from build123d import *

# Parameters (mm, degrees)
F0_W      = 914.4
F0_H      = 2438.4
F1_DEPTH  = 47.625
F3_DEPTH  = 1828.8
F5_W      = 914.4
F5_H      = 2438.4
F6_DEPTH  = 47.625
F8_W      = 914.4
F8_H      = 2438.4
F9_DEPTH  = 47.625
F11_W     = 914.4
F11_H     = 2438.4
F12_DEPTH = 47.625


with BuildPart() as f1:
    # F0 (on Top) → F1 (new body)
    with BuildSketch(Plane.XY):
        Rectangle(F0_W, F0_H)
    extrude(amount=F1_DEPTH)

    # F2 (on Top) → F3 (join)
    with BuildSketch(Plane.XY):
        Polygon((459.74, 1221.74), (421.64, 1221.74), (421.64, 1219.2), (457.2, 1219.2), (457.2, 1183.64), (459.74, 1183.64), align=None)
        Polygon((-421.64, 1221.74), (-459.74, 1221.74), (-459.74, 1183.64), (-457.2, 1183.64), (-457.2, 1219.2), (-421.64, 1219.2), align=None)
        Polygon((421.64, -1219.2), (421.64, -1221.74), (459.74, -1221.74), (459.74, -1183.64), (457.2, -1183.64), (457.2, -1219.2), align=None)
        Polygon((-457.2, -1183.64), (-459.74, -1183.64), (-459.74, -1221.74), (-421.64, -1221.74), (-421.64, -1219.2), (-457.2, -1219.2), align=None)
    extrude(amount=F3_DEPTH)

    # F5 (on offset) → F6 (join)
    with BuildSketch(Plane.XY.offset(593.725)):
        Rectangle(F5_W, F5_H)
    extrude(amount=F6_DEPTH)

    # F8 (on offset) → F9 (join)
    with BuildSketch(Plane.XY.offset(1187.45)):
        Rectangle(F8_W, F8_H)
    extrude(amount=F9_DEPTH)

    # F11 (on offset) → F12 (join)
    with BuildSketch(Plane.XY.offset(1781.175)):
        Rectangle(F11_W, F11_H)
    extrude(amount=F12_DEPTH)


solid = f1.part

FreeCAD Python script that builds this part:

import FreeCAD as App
import Part
import Sketcher

V = App.Vector
Q = App.Units.Quantity

doc = App.newDocument("Part")
body = doc.addObject("PartDesign::Body", "Body")

sketch1 = body.newObject("Sketcher::SketchObject", "Sketch")
sketch1.AttachmentSupport = (doc.getObject("XY_Plane"), [""])
sketch1.MapMode = "FlatFace"
sketch1.addGeometry(Part.LineSegment(V(-457, 1219, 0), V(-457, -1219, 0)), False)
sketch1.addGeometry(Part.LineSegment(V(-457, -1219, 0), V(457, -1219, 0)), False)
sketch1.addGeometry(Part.LineSegment(V(457, -1219, 0), V(457, 1219, 0)), False)
sketch1.addGeometry(Part.LineSegment(V(457, 1219, 0), V(-457, 1219, 0)), False)
sketch1.addConstraint(Sketcher.Constraint("Coincident", 0, 2, 1, 1))
sketch1.addConstraint(Sketcher.Constraint("Coincident", 1, 2, 2, 1))
sketch1.addConstraint(Sketcher.Constraint("Coincident", 2, 2, 3, 1))
sketch1.addConstraint(Sketcher.Constraint("Coincident", 3, 2, 0, 1))
sketch1.addConstraint(Sketcher.Constraint("Vertical", 0))
sketch1.addConstraint(Sketcher.Constraint("Horizontal", 1))
sketch1.addConstraint(Sketcher.Constraint("Vertical", 2))
sketch1.addConstraint(Sketcher.Constraint("Horizontal", 3))
sketch1.addConstraint(Sketcher.Constraint("Symmetric", 0, 2, 2, 2, -1, 1))
sketch1.addConstraint(Sketcher.Constraint("DistanceX", 1, 1, 1, 2, Q("36 in")))
sketch1.addConstraint(Sketcher.Constraint("DistanceY", 0, 2, 0, 1, Q("96 in")))
pad1 = body.newObject("PartDesign::Pad", "Pad")
pad1.Profile = sketch1
pad1.Length = Q("1.875 in")

sketch2 = body.newObject("Sketcher::SketchObject", "Sketch001")
sketch2.AttachmentSupport = (doc.getObject("XY_Plane"), [""])
sketch2.MapMode = "FlatFace"
sketch2.addGeometry(Part.LineSegment(V(459.7, 1221.7, 0), V(421.6, 1221.7, 0)), False)
sketch2.addGeometry(Part.LineSegment(V(421.6, 1221.7, 0), V(421.6, 1219.2, 0)), False)
sketch2.addGeometry(Part.LineSegment(V(421.6, 1219.2, 0), V(457.2, 1219.2, 0)), False)
sketch2.addGeometry(Part.LineSegment(V(457.2, 1219.2, 0), V(457.2, 1183.6, 0)), False)
sketch2.addGeometry(Part.LineSegment(V(457.2, 1183.6, 0), V(459.7, 1183.6, 0)), False)
sketch2.addGeometry(Part.LineSegment(V(459.7, 1183.6, 0), V(459.7, 1221.7, 0)), False)
sketch2.addGeometry(Part.LineSegment(V(-421.6, 1221.7, 0), V(-459.7, 1221.7, 0)), False)
sketch2.addGeometry(Part.LineSegment(V(-459.7, 1221.7, 0), V(-459.7, 1183.6, 0)), False)
sketch2.addGeometry(Part.LineSegment(V(-459.7, 1183.6, 0), V(-457.2, 1183.6, 0)), False)
sketch2.addGeometry(Part.LineSegment(V(-457.2, 1183.6, 0), V(-457.2, 1219.2, 0)), False)
sketch2.addGeometry(Part.LineSegment(V(-457.2, 1219.2, 0), V(-421.6, 1219.2, 0)), False)
sketch2.addGeometry(Part.LineSegment(V(-421.6, 1219.2, 0), V(-421.6, 1221.7, 0)), False)
sketch2.addGeometry(Part.LineSegment(V(421.6, -1219.2, 0), V(421.6, -1221.7, 0)), False)
sketch2.addGeometry(Part.LineSegment(V(421.6, -1221.7, 0), V(459.7, -1221.7, 0)), False)
sketch2.addGeometry(Part.LineSegment(V(459.7, -1221.7, 0), V(459.7, -1183.6, 0)), False)
sketch2.addGeometry(Part.LineSegment(V(459.7, -1183.6, 0), V(457.2, -1183.6, 0)), False)
sketch2.addGeometry(Part.LineSegment(V(457.2, -1183.6, 0), V(457.2, -1219.2, 0)), False)
sketch2.addGeometry(Part.LineSegment(V(457.2, -1219.2, 0), V(421.6, -1219.2, 0)), False)
sketch2.addGeometry(Part.LineSegment(V(-457.2, -1183.6, 0), V(-459.7, -1183.6, 0)), False)
sketch2.addGeometry(Part.LineSegment(V(-459.7, -1183.6, 0), V(-459.7, -1221.7, 0)), False)
sketch2.addGeometry(Part.LineSegment(V(-459.7, -1221.7, 0), V(-421.6, -1221.7, 0)), False)
sketch2.addGeometry(Part.LineSegment(V(-421.6, -1221.7, 0), V(-421.6, -1219.2, 0)), False)
sketch2.addGeometry(Part.LineSegment(V(-421.6, -1219.2, 0), V(-457.2, -1219.2, 0)), False)
sketch2.addGeometry(Part.LineSegment(V(-457.2, -1219.2, 0), V(-457.2, -1183.6, 0)), False)
sketch2.addConstraint(Sketcher.Constraint("Coincident", 0, 2, 1, 1))
sketch2.addConstraint(Sketcher.Constraint("Coincident", 1, 2, 2, 1))
sketch2.addConstraint(Sketcher.Constraint("Coincident", 2, 2, 3, 1))
sketch2.addConstraint(Sketcher.Constraint("Coincident", 3, 2, 4, 1))
sketch2.addConstraint(Sketcher.Constraint("Coincident", 4, 2, 5, 1))
sketch2.addConstraint(Sketcher.Constraint("Coincident", 5, 2, 0, 1))
sketch2.addConstraint(Sketcher.Constraint("Coincident", 6, 2, 7, 1))
sketch2.addConstraint(Sketcher.Constraint("Coincident", 7, 2, 8, 1))
sketch2.addConstraint(Sketcher.Constraint("Coincident", 8, 2, 9, 1))
sketch2.addConstraint(Sketcher.Constraint("Coincident", 9, 2, 10, 1))
sketch2.addConstraint(Sketcher.Constraint("Coincident", 10, 2, 11, 1))
sketch2.addConstraint(Sketcher.Constraint("Coincident", 11, 2, 6, 1))
sketch2.addConstraint(Sketcher.Constraint("Coincident", 12, 2, 13, 1))
sketch2.addConstraint(Sketcher.Constraint("Coincident", 13, 2, 14, 1))
sketch2.addConstraint(Sketcher.Constraint("Coincident", 14, 2, 15, 1))
sketch2.addConstraint(Sketcher.Constraint("Coincident", 15, 2, 16, 1))
sketch2.addConstraint(Sketcher.Constraint("Coincident", 16, 2, 17, 1))
sketch2.addConstraint(Sketcher.Constraint("Coincident", 17, 2, 12, 1))
sketch2.addConstraint(Sketcher.Constraint("Coincident", 18, 2, 19, 1))
sketch2.addConstraint(Sketcher.Constraint("Coincident", 19, 2, 20, 1))
sketch2.addConstraint(Sketcher.Constraint("Coincident", 20, 2, 21, 1))
sketch2.addConstraint(Sketcher.Constraint("Coincident", 21, 2, 22, 1))
sketch2.addConstraint(Sketcher.Constraint("Coincident", 22, 2, 23, 1))
sketch2.addConstraint(Sketcher.Constraint("Coincident", 23, 2, 18, 1))
sketch2.addConstraint(Sketcher.Constraint("Horizontal", 0))
sketch2.addConstraint(Sketcher.Constraint("Vertical", 1))
sketch2.addConstraint(Sketcher.Constraint("Horizontal", 2))
sketch2.addConstraint(Sketcher.Constraint("Vertical", 3))
sketch2.addConstraint(Sketcher.Constraint("Horizontal", 4))
sketch2.addConstraint(Sketcher.Constraint("Vertical", 5))
sketch2.addConstraint(Sketcher.Constraint("Horizontal", 6))
sketch2.addConstraint(Sketcher.Constraint("Vertical", 7))
sketch2.addConstraint(Sketcher.Constraint("Horizontal", 8))
sketch2.addConstraint(Sketcher.Constraint("Vertical", 9))
sketch2.addConstraint(Sketcher.Constraint("Horizontal", 10))
sketch2.addConstraint(Sketcher.Constraint("Vertical", 11))
sketch2.addConstraint(Sketcher.Constraint("Vertical", 12))
sketch2.addConstraint(Sketcher.Constraint("Horizontal", 13))
sketch2.addConstraint(Sketcher.Constraint("Vertical", 14))
sketch2.addConstraint(Sketcher.Constraint("Horizontal", 15))
sketch2.addConstraint(Sketcher.Constraint("Vertical", 16))
sketch2.addConstraint(Sketcher.Constraint("Horizontal", 17))
sketch2.addConstraint(Sketcher.Constraint("Horizontal", 18))
sketch2.addConstraint(Sketcher.Constraint("Vertical", 19))
sketch2.addConstraint(Sketcher.Constraint("Horizontal", 20))
sketch2.addConstraint(Sketcher.Constraint("Vertical", 21))
sketch2.addConstraint(Sketcher.Constraint("Horizontal", 22))
sketch2.addConstraint(Sketcher.Constraint("Vertical", 23))
sketch2.addConstraint(Sketcher.Constraint("Symmetric", 11, 2, 12, 2, -1, 1))
sketch2.addConstraint(Sketcher.Constraint("Symmetric", 7, 2, 14, 2, -1, 1))
sketch2.addConstraint(Sketcher.Constraint("Symmetric", 9, 2, 16, 2, -1, 1))
sketch2.addConstraint(Sketcher.Constraint("Symmetric", 4, 2, 18, 2, -1, 1))
sketch2.addConstraint(Sketcher.Constraint("Symmetric", 0, 2, 20, 2, -1, 1))
sketch2.addConstraint(Sketcher.Constraint("Symmetric", 2, 2, 22, 2, -1, 1))
sketch2.addConstraint(Sketcher.Constraint("Symmetric", 5, 2, 6, 2, -2))
sketch2.addConstraint(Sketcher.Constraint("Symmetric", 3, 2, 8, 2, -2))
sketch2.addConstraint(Sketcher.Constraint("Symmetric", 1, 2, 10, 2, -2))
sketch2.addConstraint(Sketcher.Constraint("Equal", 18, 1))
sketch2.addConstraint(Sketcher.Constraint("Equal", 22, 3))
sketch2.addConstraint(Sketcher.Constraint("DistanceX", 0, 2, 0, 1, Q("1.5 in")))
sketch2.addConstraint(Sketcher.Constraint("DistanceX", 2, 1, 2, 2, Q("1.4 in")))
sketch2.addConstraint(Sketcher.Constraint("DistanceY", -1, 1, 1, 2, Q("48 in")))
sketch2.addConstraint(Sketcher.Constraint("DistanceX", -1, 1, 2, 2, Q("18 in")))
pad2 = body.newObject("PartDesign::Pad", "Pad001")
pad2.Profile = sketch2
pad2.Length = Q("72 in")

sketch3 = body.newObject("Sketcher::SketchObject", "Sketch002")
sketch3.AttachmentSupport = (doc.getObject("XY_Plane"), [""])
sketch3.MapMode = "FlatFace"
sketch3.AttachmentOffset = App.Placement(V(0, 0, 23.375 * 25.4), App.Rotation())
sketch3.addGeometry(Part.LineSegment(V(-457, 1219, 0), V(-457, -1219, 0)), False)
sketch3.addGeometry(Part.LineSegment(V(-457, -1219, 0), V(457, -1219, 0)), False)
sketch3.addGeometry(Part.LineSegment(V(457, -1219, 0), V(457, 1219, 0)), False)
sketch3.addGeometry(Part.LineSegment(V(457, 1219, 0), V(-457, 1219, 0)), False)
sketch3.addConstraint(Sketcher.Constraint("Coincident", 0, 2, 1, 1))
sketch3.addConstraint(Sketcher.Constraint("Coincident", 1, 2, 2, 1))
sketch3.addConstraint(Sketcher.Constraint("Coincident", 2, 2, 3, 1))
sketch3.addConstraint(Sketcher.Constraint("Coincident", 3, 2, 0, 1))
sketch3.addConstraint(Sketcher.Constraint("Vertical", 0))
sketch3.addConstraint(Sketcher.Constraint("Horizontal", 1))
sketch3.addConstraint(Sketcher.Constraint("Vertical", 2))
sketch3.addConstraint(Sketcher.Constraint("Horizontal", 3))
sketch3.addConstraint(Sketcher.Constraint("Symmetric", 0, 2, 2, 2, -1, 1))
sketch3.addConstraint(Sketcher.Constraint("DistanceX", 1, 1, 1, 2, Q("36 in")))
sketch3.addConstraint(Sketcher.Constraint("DistanceY", 0, 2, 0, 1, Q("96 in")))
pad3 = body.newObject("PartDesign::Pad", "Pad002")
pad3.Profile = sketch3
pad3.Length = Q("1.875 in")

sketch4 = body.newObject("Sketcher::SketchObject", "Sketch003")
sketch4.AttachmentSupport = (doc.getObject("XY_Plane"), [""])
sketch4.MapMode = "FlatFace"
sketch4.AttachmentOffset = App.Placement(V(0, 0, 46.75 * 25.4), App.Rotation())
sketch4.addGeometry(Part.LineSegment(V(-457, 1219, 0), V(-457, -1219, 0)), False)
sketch4.addGeometry(Part.LineSegment(V(-457, -1219, 0), V(457, -1219, 0)), False)
sketch4.addGeometry(Part.LineSegment(V(457, -1219, 0), V(457, 1219, 0)), False)
sketch4.addGeometry(Part.LineSegment(V(457, 1219, 0), V(-457, 1219, 0)), False)
sketch4.addConstraint(Sketcher.Constraint("Coincident", 0, 2, 1, 1))
sketch4.addConstraint(Sketcher.Constraint("Coincident", 1, 2, 2, 1))
sketch4.addConstraint(Sketcher.Constraint("Coincident", 2, 2, 3, 1))
sketch4.addConstraint(Sketcher.Constraint("Coincident", 3, 2, 0, 1))
sketch4.addConstraint(Sketcher.Constraint("Vertical", 0))
sketch4.addConstraint(Sketcher.Constraint("Horizontal", 1))
sketch4.addConstraint(Sketcher.Constraint("Vertical", 2))
sketch4.addConstraint(Sketcher.Constraint("Horizontal", 3))
sketch4.addConstraint(Sketcher.Constraint("Symmetric", 0, 2, 2, 2, -1, 1))
sketch4.addConstraint(Sketcher.Constraint("DistanceX", 1, 1, 1, 2, Q("36 in")))
sketch4.addConstraint(Sketcher.Constraint("DistanceY", 0, 2, 0, 1, Q("96 in")))
pad4 = body.newObject("PartDesign::Pad", "Pad003")
pad4.Profile = sketch4
pad4.Length = Q("1.875 in")

sketch5 = body.newObject("Sketcher::SketchObject", "Sketch004")
sketch5.AttachmentSupport = (doc.getObject("XY_Plane"), [""])
sketch5.MapMode = "FlatFace"
sketch5.AttachmentOffset = App.Placement(V(0, 0, 70.125 * 25.4), App.Rotation())
sketch5.addGeometry(Part.LineSegment(V(-457, 1219, 0), V(-457, -1219, 0)), False)
sketch5.addGeometry(Part.LineSegment(V(-457, -1219, 0), V(457, -1219, 0)), False)
sketch5.addGeometry(Part.LineSegment(V(457, -1219, 0), V(457, 1219, 0)), False)
sketch5.addGeometry(Part.LineSegment(V(457, 1219, 0), V(-457, 1219, 0)), False)
sketch5.addConstraint(Sketcher.Constraint("Coincident", 0, 2, 1, 1))
sketch5.addConstraint(Sketcher.Constraint("Coincident", 1, 2, 2, 1))
sketch5.addConstraint(Sketcher.Constraint("Coincident", 2, 2, 3, 1))
sketch5.addConstraint(Sketcher.Constraint("Coincident", 3, 2, 0, 1))
sketch5.addConstraint(Sketcher.Constraint("Vertical", 0))
sketch5.addConstraint(Sketcher.Constraint("Horizontal", 1))
sketch5.addConstraint(Sketcher.Constraint("Vertical", 2))
sketch5.addConstraint(Sketcher.Constraint("Horizontal", 3))
sketch5.addConstraint(Sketcher.Constraint("Symmetric", 0, 2, 2, 2, -1, 1))
sketch5.addConstraint(Sketcher.Constraint("DistanceX", 1, 1, 1, 2, Q("36 in")))
sketch5.addConstraint(Sketcher.Constraint("DistanceY", 0, 2, 0, 1, Q("96 in")))
pad5 = body.newObject("PartDesign::Pad", "Pad004")
pad5.Profile = sketch5
pad5.Length = Q("1.875 in")

doc.recompute()
